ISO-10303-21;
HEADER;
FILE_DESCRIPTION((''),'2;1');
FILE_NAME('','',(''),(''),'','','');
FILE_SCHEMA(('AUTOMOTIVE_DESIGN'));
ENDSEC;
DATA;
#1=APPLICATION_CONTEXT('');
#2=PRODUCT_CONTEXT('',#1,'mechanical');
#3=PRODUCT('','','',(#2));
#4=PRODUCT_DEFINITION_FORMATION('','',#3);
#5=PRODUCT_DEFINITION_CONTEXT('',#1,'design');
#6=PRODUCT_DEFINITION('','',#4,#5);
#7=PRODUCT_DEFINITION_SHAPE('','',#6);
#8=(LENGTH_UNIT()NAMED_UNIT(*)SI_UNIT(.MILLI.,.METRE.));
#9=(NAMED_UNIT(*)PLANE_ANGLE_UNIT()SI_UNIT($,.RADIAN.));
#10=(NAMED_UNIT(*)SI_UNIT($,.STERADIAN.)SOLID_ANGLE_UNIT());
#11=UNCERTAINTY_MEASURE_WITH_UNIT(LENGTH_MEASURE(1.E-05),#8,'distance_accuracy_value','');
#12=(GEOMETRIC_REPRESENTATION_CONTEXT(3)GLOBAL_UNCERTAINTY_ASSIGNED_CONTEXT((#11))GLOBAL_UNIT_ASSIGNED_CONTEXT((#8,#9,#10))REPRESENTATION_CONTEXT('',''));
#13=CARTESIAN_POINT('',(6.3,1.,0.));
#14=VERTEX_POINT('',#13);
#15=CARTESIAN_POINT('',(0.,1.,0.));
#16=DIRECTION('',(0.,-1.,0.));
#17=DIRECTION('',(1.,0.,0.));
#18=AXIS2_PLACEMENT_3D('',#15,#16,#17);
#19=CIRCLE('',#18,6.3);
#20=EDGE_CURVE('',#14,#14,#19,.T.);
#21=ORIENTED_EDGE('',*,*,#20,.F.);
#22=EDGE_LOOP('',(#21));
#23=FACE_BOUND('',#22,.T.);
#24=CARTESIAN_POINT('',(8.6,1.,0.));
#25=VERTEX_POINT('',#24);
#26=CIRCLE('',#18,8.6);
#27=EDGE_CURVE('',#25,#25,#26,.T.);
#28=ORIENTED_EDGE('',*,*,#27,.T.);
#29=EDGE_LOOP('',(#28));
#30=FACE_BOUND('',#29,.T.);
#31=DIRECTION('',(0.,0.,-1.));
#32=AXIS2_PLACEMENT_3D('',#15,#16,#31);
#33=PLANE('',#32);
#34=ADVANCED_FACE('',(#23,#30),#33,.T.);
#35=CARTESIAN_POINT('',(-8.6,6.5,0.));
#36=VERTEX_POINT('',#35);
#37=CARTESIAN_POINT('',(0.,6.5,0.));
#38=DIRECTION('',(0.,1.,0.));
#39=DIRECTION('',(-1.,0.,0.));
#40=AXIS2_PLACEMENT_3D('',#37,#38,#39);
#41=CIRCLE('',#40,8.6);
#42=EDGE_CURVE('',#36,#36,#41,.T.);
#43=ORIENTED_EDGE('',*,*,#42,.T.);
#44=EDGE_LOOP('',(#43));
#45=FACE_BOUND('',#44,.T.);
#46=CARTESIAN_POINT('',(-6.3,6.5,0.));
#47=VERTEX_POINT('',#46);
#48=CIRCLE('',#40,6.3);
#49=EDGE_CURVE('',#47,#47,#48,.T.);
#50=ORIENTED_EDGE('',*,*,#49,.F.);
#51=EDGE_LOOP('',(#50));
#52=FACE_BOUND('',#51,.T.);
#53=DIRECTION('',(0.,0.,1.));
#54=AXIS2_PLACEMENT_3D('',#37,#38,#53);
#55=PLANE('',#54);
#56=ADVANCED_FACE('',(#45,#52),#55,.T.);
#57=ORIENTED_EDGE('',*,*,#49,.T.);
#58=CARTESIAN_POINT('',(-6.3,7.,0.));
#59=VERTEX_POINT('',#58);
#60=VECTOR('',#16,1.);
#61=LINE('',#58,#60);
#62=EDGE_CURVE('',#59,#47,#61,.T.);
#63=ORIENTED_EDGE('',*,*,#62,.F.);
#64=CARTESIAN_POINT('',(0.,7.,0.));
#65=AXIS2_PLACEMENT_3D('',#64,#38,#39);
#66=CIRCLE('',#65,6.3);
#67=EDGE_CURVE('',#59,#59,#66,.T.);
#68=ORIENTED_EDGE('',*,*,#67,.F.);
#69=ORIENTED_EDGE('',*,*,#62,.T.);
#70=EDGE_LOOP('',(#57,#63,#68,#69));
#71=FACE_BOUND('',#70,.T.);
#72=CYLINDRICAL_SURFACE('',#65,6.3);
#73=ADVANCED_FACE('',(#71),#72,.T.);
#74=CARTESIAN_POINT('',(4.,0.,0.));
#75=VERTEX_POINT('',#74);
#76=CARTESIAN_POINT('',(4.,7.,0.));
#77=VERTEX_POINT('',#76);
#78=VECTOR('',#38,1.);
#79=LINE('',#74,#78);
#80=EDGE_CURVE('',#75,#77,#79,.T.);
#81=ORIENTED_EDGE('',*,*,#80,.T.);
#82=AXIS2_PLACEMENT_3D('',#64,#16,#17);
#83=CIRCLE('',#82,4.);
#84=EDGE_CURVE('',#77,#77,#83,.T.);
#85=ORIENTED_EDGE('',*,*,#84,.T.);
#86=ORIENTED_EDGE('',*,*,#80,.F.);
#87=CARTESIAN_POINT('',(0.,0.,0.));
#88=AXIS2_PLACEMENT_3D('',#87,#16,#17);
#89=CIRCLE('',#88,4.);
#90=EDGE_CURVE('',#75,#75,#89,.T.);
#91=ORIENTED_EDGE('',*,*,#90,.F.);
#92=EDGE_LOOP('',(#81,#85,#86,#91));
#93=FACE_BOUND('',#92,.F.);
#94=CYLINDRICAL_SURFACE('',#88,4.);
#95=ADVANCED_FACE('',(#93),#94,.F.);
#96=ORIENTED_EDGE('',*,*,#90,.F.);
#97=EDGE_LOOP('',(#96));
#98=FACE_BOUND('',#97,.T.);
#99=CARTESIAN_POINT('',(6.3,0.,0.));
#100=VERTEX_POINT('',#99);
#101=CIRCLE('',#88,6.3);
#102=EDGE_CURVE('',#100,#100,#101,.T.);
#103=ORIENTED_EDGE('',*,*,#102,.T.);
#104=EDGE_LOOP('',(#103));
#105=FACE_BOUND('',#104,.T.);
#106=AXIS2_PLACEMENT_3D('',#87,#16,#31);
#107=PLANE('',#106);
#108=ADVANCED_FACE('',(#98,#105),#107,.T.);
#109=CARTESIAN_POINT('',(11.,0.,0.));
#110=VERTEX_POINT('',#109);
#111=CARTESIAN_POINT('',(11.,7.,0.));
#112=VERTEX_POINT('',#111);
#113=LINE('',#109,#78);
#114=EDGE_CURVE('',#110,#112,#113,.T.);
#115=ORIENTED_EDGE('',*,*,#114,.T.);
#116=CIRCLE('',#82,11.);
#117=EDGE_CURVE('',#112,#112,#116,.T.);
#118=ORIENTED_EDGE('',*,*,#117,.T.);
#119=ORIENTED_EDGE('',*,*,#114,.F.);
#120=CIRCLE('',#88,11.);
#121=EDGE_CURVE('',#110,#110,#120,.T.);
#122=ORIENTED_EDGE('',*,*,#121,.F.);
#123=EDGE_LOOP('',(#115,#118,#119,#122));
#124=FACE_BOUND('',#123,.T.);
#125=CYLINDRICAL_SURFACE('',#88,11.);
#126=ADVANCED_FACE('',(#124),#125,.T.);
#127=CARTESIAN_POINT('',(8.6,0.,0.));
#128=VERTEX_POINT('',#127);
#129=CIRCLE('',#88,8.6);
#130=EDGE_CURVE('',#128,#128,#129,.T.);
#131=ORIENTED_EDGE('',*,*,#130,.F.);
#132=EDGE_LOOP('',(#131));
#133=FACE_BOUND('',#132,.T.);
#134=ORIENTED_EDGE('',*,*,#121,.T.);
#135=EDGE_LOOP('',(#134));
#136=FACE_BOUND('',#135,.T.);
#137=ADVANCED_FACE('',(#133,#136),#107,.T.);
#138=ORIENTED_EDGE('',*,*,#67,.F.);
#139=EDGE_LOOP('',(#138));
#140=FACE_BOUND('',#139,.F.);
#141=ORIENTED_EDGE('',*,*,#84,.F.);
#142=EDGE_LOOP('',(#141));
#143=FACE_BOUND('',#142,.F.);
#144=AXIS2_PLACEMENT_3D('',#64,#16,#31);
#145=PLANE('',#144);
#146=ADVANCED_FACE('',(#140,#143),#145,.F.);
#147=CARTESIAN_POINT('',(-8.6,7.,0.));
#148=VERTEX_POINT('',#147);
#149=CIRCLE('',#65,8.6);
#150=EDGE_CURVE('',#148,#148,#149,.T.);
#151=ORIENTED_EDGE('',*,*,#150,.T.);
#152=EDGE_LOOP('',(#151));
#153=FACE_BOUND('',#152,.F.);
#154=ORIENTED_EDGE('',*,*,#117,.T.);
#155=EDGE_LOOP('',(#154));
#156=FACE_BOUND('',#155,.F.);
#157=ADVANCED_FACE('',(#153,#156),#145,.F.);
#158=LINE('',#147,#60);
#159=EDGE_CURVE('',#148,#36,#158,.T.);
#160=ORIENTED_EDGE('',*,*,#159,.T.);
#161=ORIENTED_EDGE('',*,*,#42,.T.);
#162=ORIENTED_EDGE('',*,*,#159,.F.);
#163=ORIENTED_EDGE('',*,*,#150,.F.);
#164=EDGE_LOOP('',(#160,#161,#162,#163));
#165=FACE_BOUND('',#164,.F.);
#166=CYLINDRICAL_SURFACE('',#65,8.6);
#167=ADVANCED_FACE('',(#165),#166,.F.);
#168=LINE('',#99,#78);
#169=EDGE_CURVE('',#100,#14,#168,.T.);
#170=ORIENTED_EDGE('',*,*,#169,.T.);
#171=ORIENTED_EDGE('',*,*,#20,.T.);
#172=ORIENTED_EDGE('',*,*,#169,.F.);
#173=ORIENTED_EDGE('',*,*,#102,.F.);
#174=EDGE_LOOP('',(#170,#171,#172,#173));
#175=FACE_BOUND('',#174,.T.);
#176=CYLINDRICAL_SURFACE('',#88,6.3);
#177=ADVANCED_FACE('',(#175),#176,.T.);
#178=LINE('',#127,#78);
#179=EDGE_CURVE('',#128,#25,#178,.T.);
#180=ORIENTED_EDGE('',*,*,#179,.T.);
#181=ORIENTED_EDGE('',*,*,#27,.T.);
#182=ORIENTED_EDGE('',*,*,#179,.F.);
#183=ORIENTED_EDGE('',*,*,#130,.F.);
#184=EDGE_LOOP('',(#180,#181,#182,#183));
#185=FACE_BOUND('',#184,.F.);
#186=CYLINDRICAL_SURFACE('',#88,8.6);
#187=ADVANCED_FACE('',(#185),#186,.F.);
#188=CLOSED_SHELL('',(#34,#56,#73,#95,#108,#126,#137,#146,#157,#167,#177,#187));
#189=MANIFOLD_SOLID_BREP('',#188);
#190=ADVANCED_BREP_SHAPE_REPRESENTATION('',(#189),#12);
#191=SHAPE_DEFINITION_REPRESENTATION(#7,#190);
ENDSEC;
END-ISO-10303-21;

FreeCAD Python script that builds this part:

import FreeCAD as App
import Part
import Sketcher
from FreeCAD import Vector

doc = App.newDocument("Part")
body = doc.addObject("PartDesign::Body", "Body")

# Sketch on XZ plane
sketch1 = body.newObject("Sketcher::SketchObject", "Sketch")
sketch1.AttachmentSupport = (doc.getObject("XZ_Plane"), [""])
sketch1.MapMode = "FlatFace"
sketch1.addGeometry(Part.Circle(Vector(0, 0, 0), Vector(0, 0, 1), 11), False)
sketch1.addGeometry(Part.Circle(Vector(0, 0, 0), Vector(0, 0, 1), 4), False)
sketch1.addConstraint(Sketcher.Constraint("Coincident", 0, 3, -1, 1))
sketch1.addConstraint(Sketcher.Constraint("Coincident", 1, 3, -1, 1))
sketch1.addConstraint(Sketcher.Constraint("Diameter", 0, 22.0))
sketch1.addConstraint(Sketcher.Constraint("Diameter", 1, 8.0))
pad1 = body.newObject("PartDesign::Pad", "Pad")
pad1.Profile = sketch1
pad1.Length = 7
pad1.Reversed = True

# Sketch on XZ plane
sketch2 = body.newObject("Sketcher::SketchObject", "Sketch001")
sketch2.AttachmentSupport = (doc.getObject("XZ_Plane"), [""])
sketch2.MapMode = "FlatFace"
sketch2.addGeometry(Part.Circle(Vector(0, 0, 0), Vector(0, 0, 1), 8.6), False)
sketch2.addGeometry(Part.Circle(Vector(0, 0, 0), Vector(0, 0, 1), 6.3), False)
sketch2.addConstraint(Sketcher.Constraint("Coincident", 0, 3, -1, 1))
sketch2.addConstraint(Sketcher.Constraint("Coincident", 1, 3, -1, 1))
sketch2.addConstraint(Sketcher.Constraint("Diameter", 0, 17.2))
sketch2.addConstraint(Sketcher.Constraint("Diameter", 1, 12.6))
pocket1 = body.newObject("PartDesign::Pocket", "Pocket")
pocket1.Profile = sketch2
pocket1.Length = 1

# Sketch on XZ plane
sketch3 = body.newObject("Sketcher::SketchObject", "Sketch002")
sketch3.AttachmentSupport = (doc.getObject("XZ_Plane"), [""])
sketch3.MapMode = "FlatFace"
sketch3.AttachmentOffset = App.Placement(Vector(0, 0, -7), App.Rotation())
sketch3.addGeometry(Part.Circle(Vector(0, 0, 0), Vector(0, 0, 1), 8.6), False)
sketch3.addGeometry(Part.Circle(Vector(0, 0, 0), Vector(0, 0, 1), 6.3), False)
sketch3.addConstraint(Sketcher.Constraint("Coincident", 0, 3, -1, 1))
sketch3.addConstraint(Sketcher.Constraint("Coincident", 1, 3, -1, 1))
sketch3.addConstraint(Sketcher.Constraint("Diameter", 0, 17.2))
sketch3.addConstraint(Sketcher.Constraint("Diameter", 1, 12.6))
pocket2 = body.newObject("PartDesign::Pocket", "Pocket001")
pocket2.Profile = sketch3
pocket2.Length = 0.5
pocket2.Reversed = True

doc.recompute()
